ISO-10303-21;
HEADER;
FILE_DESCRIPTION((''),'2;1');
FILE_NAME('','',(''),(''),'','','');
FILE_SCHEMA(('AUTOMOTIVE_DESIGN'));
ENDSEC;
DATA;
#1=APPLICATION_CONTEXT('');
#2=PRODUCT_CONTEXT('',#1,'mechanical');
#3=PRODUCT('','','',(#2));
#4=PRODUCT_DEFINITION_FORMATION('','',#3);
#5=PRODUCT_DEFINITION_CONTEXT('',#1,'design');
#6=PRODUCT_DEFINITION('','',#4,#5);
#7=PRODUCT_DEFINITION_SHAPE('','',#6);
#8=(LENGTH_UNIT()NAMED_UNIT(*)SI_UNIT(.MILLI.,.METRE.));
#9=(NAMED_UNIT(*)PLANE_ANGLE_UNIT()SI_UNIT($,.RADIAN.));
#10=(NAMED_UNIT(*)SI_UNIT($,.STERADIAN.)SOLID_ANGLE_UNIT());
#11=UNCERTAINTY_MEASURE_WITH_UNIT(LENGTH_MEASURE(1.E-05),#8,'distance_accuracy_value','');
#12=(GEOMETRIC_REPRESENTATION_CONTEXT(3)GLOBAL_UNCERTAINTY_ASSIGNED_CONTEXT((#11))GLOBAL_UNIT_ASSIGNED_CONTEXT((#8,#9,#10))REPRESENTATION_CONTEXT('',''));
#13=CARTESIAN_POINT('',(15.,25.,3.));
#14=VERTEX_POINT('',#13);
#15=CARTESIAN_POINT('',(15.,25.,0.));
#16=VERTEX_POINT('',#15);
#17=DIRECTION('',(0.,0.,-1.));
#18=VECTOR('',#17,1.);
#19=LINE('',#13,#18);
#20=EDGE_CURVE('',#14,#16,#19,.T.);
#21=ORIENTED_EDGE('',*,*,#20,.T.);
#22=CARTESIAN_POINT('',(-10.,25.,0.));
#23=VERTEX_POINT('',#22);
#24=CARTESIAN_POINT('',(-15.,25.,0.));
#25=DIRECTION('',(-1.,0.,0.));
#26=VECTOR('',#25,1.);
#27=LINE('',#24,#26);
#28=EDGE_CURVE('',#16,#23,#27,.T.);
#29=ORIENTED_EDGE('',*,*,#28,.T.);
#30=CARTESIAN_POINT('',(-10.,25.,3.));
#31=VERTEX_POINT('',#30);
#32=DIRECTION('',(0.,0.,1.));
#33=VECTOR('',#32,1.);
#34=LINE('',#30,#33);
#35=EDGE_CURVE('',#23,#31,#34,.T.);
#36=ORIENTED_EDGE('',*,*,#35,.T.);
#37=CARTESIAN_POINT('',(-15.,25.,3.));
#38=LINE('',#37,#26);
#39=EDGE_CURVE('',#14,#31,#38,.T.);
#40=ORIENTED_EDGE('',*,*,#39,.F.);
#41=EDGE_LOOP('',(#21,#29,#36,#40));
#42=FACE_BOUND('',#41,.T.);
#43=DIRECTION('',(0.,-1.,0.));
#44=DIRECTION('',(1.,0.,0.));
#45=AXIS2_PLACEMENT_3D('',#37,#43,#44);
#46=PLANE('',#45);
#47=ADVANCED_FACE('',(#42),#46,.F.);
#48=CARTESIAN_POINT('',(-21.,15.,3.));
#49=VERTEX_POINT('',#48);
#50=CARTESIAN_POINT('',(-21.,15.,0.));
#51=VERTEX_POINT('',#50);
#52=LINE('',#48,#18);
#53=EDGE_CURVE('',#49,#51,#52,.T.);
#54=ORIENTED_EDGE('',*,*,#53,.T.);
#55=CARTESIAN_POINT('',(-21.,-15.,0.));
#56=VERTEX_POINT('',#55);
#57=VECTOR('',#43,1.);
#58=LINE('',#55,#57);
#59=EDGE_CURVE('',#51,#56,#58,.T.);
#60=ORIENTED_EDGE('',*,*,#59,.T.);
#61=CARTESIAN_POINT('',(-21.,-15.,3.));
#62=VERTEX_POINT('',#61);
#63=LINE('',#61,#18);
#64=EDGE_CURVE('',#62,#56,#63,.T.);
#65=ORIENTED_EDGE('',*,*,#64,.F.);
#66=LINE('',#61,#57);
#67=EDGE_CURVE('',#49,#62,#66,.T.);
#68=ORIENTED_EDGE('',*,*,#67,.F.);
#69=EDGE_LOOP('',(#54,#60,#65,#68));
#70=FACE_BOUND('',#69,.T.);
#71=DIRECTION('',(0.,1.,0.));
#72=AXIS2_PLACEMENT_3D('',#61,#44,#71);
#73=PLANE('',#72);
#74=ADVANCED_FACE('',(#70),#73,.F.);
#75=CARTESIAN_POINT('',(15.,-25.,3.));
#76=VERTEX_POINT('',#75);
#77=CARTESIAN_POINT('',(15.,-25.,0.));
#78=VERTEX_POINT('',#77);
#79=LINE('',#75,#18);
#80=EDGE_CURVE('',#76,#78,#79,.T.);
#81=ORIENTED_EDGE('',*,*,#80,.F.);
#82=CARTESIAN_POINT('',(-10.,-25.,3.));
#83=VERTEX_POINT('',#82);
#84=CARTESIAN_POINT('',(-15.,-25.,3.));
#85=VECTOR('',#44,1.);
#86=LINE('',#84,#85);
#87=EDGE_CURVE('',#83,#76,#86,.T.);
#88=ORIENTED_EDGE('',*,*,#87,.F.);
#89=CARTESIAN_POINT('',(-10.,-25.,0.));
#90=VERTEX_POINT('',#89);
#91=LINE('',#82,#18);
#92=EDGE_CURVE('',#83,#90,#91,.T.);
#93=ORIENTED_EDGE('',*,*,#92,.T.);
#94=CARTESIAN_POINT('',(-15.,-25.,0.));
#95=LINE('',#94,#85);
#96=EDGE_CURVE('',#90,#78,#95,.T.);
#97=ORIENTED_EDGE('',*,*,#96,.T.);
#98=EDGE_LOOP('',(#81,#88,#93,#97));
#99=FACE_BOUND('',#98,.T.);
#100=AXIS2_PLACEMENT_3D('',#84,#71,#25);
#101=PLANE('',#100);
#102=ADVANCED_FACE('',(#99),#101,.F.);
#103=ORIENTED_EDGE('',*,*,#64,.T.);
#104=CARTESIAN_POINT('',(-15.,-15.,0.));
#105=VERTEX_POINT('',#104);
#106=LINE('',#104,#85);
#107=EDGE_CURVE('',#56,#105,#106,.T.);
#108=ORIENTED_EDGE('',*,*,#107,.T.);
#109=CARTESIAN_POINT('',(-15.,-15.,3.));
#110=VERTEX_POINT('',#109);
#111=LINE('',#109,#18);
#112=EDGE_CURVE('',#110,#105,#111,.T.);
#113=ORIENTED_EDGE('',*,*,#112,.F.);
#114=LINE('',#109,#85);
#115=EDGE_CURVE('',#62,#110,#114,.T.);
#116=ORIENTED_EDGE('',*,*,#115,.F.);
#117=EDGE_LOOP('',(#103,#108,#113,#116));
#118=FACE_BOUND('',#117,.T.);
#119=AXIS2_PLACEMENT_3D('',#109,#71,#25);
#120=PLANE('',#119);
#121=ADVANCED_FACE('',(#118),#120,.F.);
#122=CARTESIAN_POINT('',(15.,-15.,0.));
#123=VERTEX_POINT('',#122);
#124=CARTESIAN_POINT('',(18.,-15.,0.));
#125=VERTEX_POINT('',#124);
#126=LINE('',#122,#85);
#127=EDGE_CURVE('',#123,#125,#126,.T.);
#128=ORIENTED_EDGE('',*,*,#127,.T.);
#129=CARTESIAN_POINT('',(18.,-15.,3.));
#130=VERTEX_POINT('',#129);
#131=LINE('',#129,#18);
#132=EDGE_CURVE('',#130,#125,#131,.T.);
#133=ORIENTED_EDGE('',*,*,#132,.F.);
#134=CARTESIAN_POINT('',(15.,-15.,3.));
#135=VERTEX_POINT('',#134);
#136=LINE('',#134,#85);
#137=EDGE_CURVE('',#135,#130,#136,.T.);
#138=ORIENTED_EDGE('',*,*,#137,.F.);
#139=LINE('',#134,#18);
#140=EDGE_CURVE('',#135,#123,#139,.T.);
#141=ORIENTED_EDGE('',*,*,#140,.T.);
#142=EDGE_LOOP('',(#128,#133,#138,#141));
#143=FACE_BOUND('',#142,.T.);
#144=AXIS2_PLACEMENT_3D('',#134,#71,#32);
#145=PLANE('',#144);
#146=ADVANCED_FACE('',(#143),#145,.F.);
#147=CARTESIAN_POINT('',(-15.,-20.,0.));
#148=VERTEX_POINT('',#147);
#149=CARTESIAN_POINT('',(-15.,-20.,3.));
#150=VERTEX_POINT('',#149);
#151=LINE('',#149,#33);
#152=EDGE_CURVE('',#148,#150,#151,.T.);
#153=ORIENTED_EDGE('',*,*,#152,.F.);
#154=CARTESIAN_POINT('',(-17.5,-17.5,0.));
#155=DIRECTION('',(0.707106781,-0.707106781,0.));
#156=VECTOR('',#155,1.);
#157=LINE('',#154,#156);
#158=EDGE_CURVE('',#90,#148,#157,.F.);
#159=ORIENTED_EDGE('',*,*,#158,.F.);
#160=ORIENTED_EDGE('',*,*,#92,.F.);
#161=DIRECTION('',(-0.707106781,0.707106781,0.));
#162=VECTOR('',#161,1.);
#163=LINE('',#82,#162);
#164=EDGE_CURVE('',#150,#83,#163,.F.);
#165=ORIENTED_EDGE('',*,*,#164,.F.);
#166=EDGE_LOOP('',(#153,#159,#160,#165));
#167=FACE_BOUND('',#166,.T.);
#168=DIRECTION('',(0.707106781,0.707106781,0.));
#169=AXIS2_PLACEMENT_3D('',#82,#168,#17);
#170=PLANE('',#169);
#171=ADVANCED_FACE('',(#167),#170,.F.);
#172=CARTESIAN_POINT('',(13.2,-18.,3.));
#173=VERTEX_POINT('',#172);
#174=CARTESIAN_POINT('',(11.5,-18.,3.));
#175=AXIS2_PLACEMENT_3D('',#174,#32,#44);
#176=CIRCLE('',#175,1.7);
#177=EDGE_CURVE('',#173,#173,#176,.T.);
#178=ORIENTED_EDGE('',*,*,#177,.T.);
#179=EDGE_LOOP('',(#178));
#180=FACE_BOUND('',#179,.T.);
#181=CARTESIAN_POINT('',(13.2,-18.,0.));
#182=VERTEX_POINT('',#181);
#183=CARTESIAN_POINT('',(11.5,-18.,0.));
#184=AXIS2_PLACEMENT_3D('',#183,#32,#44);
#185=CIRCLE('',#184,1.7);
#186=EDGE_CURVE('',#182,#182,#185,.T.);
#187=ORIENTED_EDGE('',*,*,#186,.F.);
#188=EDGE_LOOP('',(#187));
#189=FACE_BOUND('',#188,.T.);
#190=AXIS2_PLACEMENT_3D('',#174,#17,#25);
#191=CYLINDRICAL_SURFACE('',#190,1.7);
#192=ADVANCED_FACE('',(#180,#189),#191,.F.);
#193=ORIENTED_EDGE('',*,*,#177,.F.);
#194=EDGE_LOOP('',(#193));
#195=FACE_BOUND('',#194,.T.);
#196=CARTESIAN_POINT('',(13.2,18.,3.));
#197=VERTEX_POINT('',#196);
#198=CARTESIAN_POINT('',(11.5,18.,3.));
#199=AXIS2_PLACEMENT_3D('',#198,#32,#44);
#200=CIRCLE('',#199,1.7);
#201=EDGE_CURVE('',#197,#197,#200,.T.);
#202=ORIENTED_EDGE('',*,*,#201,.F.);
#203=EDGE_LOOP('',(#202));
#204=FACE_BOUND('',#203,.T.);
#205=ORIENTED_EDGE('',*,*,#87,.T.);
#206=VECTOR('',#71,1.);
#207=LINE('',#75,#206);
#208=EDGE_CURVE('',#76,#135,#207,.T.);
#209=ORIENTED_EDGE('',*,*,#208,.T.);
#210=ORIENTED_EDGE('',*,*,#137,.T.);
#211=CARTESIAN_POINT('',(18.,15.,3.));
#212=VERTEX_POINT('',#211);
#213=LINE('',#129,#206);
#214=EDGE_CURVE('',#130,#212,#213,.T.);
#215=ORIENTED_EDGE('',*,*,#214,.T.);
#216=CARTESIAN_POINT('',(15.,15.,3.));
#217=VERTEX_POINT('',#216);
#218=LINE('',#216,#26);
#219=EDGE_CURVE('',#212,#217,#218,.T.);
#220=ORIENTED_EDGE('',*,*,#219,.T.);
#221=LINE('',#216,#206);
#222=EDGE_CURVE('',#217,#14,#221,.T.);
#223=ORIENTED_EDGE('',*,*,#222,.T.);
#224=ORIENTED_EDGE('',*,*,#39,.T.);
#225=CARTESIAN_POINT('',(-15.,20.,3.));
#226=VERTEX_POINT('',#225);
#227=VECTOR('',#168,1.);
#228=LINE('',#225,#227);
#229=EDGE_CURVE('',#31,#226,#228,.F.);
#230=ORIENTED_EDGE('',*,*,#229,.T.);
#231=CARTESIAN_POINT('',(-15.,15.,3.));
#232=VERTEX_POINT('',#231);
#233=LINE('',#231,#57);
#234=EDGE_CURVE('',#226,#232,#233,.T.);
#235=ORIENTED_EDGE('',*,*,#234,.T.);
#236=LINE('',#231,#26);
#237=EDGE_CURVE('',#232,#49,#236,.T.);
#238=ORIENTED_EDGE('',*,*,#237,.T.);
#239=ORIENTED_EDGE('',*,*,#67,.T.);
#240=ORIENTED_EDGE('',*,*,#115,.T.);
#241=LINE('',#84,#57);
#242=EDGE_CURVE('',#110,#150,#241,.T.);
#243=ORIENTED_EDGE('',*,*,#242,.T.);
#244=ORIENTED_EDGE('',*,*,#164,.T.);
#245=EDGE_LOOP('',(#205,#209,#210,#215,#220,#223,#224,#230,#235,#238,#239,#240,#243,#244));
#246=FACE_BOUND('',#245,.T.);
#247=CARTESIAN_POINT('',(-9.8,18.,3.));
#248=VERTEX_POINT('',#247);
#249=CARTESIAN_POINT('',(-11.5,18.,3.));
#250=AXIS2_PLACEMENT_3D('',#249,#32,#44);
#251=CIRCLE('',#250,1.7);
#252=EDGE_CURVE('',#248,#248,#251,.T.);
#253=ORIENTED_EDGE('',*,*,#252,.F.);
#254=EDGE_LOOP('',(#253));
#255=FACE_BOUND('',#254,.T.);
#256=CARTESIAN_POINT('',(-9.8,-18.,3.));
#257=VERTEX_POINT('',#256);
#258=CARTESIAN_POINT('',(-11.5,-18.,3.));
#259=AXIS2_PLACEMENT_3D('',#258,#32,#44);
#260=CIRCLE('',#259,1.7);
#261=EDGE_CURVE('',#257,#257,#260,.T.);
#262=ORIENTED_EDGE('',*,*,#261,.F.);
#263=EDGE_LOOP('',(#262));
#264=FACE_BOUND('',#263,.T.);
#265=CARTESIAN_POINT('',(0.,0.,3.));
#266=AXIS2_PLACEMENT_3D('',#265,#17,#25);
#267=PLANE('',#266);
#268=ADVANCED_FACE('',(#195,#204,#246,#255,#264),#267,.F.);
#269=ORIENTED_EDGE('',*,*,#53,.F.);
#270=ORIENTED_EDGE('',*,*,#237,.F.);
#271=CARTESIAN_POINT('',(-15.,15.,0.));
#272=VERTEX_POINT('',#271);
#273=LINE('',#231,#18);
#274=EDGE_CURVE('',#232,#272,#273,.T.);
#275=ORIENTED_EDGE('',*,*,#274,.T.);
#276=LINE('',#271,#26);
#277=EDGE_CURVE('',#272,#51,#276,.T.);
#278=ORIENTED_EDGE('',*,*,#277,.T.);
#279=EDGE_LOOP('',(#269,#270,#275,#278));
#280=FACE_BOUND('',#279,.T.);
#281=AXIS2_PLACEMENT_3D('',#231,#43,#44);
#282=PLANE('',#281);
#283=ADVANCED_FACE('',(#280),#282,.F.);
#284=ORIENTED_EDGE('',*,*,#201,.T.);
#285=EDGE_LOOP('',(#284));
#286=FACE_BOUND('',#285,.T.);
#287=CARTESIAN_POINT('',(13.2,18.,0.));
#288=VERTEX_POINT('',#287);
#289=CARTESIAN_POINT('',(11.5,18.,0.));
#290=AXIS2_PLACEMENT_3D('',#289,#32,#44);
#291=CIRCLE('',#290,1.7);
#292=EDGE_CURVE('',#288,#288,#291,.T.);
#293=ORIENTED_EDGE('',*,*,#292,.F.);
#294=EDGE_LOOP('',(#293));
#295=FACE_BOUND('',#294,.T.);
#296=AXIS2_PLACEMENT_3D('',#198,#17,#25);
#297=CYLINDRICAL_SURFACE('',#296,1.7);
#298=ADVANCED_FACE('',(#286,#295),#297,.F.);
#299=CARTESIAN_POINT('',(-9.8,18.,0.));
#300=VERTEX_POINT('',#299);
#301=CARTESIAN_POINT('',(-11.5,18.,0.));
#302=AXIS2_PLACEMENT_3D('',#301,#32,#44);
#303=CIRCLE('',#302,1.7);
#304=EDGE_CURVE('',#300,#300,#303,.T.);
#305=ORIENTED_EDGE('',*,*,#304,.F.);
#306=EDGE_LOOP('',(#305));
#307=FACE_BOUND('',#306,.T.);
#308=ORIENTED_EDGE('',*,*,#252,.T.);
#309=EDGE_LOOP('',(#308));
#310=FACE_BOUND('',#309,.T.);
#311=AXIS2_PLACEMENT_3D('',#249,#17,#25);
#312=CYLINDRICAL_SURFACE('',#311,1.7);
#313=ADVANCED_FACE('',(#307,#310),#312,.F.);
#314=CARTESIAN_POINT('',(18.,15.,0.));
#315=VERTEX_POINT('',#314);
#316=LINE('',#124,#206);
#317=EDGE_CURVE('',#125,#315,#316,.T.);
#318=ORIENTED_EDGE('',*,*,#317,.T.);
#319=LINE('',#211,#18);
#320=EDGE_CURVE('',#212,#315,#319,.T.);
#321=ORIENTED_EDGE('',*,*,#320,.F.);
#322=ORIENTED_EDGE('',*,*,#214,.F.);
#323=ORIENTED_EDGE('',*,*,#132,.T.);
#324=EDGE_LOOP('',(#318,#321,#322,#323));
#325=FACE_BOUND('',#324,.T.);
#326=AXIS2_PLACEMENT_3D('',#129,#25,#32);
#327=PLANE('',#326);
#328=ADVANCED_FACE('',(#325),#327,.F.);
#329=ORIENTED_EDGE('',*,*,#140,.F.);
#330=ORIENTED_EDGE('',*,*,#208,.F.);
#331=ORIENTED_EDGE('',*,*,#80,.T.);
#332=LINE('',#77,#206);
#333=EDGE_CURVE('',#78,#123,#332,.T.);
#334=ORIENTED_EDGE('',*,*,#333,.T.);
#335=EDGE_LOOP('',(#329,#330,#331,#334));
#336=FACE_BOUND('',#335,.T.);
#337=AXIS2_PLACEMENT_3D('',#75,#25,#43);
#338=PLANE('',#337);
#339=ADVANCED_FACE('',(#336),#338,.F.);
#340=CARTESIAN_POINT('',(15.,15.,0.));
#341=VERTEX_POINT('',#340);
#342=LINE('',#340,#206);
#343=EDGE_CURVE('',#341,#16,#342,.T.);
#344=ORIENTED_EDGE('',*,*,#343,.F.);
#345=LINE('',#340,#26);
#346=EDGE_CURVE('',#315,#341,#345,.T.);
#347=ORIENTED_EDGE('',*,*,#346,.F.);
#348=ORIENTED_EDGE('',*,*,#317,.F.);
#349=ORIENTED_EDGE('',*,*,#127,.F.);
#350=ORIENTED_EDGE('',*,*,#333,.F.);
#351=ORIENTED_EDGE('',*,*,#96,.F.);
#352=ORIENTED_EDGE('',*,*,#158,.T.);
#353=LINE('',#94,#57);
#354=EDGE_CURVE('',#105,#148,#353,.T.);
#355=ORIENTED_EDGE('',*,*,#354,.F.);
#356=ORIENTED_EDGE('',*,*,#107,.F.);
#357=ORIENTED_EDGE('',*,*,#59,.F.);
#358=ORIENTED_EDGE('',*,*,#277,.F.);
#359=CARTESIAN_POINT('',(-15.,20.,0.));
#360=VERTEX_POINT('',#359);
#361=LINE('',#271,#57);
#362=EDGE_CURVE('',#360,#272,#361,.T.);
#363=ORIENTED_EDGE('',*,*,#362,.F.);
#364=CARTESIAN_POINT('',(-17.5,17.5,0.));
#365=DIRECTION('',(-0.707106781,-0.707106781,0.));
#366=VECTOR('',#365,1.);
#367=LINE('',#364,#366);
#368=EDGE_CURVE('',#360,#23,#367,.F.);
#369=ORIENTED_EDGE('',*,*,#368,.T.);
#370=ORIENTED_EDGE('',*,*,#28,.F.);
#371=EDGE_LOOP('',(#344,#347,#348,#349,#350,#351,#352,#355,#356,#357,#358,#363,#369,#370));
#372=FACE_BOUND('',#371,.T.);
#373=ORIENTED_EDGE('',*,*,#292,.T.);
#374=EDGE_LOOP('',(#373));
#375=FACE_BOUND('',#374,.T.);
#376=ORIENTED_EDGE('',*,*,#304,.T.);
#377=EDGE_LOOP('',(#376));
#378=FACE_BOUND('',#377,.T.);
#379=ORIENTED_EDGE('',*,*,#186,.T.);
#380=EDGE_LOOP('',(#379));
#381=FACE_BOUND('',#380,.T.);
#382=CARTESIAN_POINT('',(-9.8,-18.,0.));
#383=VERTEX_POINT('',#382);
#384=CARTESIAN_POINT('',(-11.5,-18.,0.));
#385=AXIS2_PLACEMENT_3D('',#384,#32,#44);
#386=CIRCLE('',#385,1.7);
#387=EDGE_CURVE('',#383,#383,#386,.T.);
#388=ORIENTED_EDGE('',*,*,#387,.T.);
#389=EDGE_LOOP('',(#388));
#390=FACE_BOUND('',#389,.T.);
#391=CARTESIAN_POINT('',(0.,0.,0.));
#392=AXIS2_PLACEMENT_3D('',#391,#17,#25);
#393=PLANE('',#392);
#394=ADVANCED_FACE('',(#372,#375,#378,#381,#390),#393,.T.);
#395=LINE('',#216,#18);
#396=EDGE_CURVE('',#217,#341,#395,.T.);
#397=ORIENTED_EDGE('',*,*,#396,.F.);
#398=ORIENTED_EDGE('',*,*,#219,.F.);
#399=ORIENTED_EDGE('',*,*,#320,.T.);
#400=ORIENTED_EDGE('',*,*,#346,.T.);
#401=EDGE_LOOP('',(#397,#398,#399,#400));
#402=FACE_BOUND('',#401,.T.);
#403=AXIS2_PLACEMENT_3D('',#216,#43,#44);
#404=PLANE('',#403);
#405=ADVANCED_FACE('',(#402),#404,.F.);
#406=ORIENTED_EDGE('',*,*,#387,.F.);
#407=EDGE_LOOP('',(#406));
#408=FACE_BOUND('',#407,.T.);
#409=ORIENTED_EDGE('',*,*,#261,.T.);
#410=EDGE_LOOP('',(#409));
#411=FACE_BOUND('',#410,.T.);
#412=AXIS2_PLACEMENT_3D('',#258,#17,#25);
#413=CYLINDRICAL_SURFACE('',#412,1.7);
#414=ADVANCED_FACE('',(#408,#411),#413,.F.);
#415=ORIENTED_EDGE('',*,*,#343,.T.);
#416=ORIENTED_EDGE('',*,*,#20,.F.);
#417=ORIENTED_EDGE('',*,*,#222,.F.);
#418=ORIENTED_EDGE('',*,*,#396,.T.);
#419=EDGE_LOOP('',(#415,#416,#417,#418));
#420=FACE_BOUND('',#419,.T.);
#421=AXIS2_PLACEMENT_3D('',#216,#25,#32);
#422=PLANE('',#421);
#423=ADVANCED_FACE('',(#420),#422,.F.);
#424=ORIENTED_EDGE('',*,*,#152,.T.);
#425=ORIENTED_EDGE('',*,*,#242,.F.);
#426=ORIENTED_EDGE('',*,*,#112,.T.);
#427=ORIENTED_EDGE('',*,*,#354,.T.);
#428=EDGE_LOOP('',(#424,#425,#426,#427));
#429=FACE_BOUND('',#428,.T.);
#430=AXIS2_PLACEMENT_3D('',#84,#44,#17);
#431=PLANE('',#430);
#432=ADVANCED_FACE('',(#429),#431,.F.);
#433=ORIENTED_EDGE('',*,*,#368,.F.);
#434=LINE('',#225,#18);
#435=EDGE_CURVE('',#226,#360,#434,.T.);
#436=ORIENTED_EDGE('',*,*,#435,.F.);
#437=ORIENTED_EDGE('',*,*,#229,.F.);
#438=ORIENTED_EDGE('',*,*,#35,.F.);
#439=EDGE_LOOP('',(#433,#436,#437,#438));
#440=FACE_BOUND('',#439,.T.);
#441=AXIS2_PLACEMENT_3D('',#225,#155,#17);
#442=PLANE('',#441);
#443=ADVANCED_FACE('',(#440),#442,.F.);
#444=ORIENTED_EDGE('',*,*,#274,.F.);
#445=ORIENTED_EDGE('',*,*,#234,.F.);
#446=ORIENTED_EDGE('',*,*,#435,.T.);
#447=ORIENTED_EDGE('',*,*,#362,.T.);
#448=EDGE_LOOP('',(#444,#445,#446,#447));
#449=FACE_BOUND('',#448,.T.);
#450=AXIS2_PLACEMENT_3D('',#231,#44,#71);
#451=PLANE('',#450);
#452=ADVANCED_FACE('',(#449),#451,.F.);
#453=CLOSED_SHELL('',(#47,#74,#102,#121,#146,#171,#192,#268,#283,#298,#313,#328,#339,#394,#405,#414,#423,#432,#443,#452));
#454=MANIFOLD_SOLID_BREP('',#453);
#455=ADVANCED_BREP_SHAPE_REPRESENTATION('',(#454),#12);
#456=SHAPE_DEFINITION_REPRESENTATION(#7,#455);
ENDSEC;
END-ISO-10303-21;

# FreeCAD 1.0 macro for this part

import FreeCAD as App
import Part
import Sketcher
from FreeCAD import Vector
Q = App.Units.Quantity


def edges_at(feature, points):
    """Names of the edges that pass closest to the given points."""
    edges = feature.Shape.Edges
    near = lambda p: min(range(len(edges)), key=lambda i: edges[i].distToShape(Part.Vertex(*p))[0])
    return sorted({f"Edge{near(p) + 1}" for p in points})


def add_polygon(sketch, points):
    """Adds a closed chain of lines whose ends are joined by coincident constraints."""
    first, n = sketch.GeometryCount, len(points)
    for a, b in zip(points, points[1:] + points[:1]):
        sketch.addGeometry(Part.LineSegment(App.Vector(*a, 0), App.Vector(*b, 0)), False)
    for i in range(n):
        sketch.addConstraint(Sketcher.Constraint("Coincident", first + i, 2, first + (i + 1) % n, 1))

doc = App.newDocument("Part")
body = doc.addObject("PartDesign::Body", "Body")

# Sketch on XY plane
sketch1 = body.newObject("Sketcher::SketchObject", "Sketch")
sketch1.AttachmentSupport = (doc.getObject("XY_Plane"), [""])
sketch1.MapMode = "FlatFace"
add_polygon(sketch1, [(-15, -25), (15, -25), (15, -15), (18, -15), (18, 15), (15, 15), (15, 25), (-15, 25), (-15, 15), (-21, 15), (-21, -15), (-15, -15)])  # lines 0-11
sketch1.addGeometry(Part.Circle(Vector(-11.5, -18, 0), Vector(0, 0, 1), 1.7), False)  # 12
sketch1.addGeometry(Part.Circle(Vector(11.5, -18, 0), Vector(0, 0, 1), 1.7), False)  # 13
sketch1.addGeometry(Part.Circle(Vector(-11.5, 18, 0), Vector(0, 0, 1), 1.7), False)  # 14
sketch1.addGeometry(Part.Circle(Vector(11.5, 18, 0), Vector(0, 0, 1), 1.7), False)  # 15
sketch1.addConstraint(Sketcher.Constraint("Horizontal", 0))
sketch1.addConstraint(Sketcher.Constraint("Vertical", 1))
sketch1.addConstraint(Sketcher.Constraint("Horizontal", 2))
sketch1.addConstraint(Sketcher.Constraint("Vertical", 3))
sketch1.addConstraint(Sketcher.Constraint("Horizontal", 4))
sketch1.addConstraint(Sketcher.Constraint("Vertical", 5))
sketch1.addConstraint(Sketcher.Constraint("Horizontal", 6))
sketch1.addConstraint(Sketcher.Constraint("Vertical", 7))
sketch1.addConstraint(Sketcher.Constraint("Horizontal", 8))
sketch1.addConstraint(Sketcher.Constraint("Vertical", 9))
sketch1.addConstraint(Sketcher.Constraint("Horizontal", 10))
sketch1.addConstraint(Sketcher.Constraint("Vertical", 11))
sketch1.addConstraint(Sketcher.Constraint("Equal", 12, 13))
sketch1.addConstraint(Sketcher.Constraint("Equal", 13, 14))
sketch1.addConstraint(Sketcher.Constraint("Equal", 14, 15))
sketch1.addConstraint(Sketcher.Constraint("Symmetric", 13, 3, 14, 3, -1, 1))
sketch1.addConstraint(Sketcher.Constraint("Symmetric", 12, 3, 15, 3, -1, 1))
sketch1.addConstraint(Sketcher.Constraint("Symmetric", 0, 2, 6, 2, -1, 1))
sketch1.addConstraint(Sketcher.Constraint("Symmetric", 4, 2, 10, 2, -1, 1))
sketch1.addConstraint(Sketcher.Constraint("Symmetric", 12, 3, 13, 3, -2))
sketch1.addConstraint(Sketcher.Constraint("Symmetric", 4, 2, 7, 2, -2))
sketch1.addConstraint(Sketcher.Constraint("Horizontal", 2, 2, 9, 2))
sketch1.addConstraint(Sketcher.Constraint("Equal", 6, 3))
sketch1.addConstraint(Sketcher.Constraint("Diameter", 12, Q("3.4 mm")))
sketch1.addConstraint(Sketcher.Constraint("DistanceX", 0, 1, 0, 2, Q("30 mm")))
sketch1.addConstraint(Sketcher.Constraint("DistanceX", 2, 1, 2, 2, Q("3 mm")))
sketch1.addConstraint(Sketcher.Constraint("DistanceX", 8, 2, 8, 1, Q("6 mm")))
sketch1.addConstraint(Sketcher.Constraint("DistanceY", 1, 1, 1, 2, Q("10 mm")))
sketch1.addConstraint(Sketcher.Constraint("DistanceY", 12, 3, -1, 1, Q("18 mm")))
sketch1.addConstraint(Sketcher.Constraint("DistanceX", 12, 3, 13, 3, Q("23 mm")))
pad1 = body.newObject("PartDesign::Pad", "Pad")
pad1.Profile = sketch1
pad1.Length = 3
doc.recompute()

chamfer = body.newObject("PartDesign::Chamfer", "Chamfer")
chamfer.Base = (pad1, edges_at(pad1, [(-15, -25, 1.5), (-15, 25, 1.5)]))
chamfer.Size = 5

doc.recompute()
